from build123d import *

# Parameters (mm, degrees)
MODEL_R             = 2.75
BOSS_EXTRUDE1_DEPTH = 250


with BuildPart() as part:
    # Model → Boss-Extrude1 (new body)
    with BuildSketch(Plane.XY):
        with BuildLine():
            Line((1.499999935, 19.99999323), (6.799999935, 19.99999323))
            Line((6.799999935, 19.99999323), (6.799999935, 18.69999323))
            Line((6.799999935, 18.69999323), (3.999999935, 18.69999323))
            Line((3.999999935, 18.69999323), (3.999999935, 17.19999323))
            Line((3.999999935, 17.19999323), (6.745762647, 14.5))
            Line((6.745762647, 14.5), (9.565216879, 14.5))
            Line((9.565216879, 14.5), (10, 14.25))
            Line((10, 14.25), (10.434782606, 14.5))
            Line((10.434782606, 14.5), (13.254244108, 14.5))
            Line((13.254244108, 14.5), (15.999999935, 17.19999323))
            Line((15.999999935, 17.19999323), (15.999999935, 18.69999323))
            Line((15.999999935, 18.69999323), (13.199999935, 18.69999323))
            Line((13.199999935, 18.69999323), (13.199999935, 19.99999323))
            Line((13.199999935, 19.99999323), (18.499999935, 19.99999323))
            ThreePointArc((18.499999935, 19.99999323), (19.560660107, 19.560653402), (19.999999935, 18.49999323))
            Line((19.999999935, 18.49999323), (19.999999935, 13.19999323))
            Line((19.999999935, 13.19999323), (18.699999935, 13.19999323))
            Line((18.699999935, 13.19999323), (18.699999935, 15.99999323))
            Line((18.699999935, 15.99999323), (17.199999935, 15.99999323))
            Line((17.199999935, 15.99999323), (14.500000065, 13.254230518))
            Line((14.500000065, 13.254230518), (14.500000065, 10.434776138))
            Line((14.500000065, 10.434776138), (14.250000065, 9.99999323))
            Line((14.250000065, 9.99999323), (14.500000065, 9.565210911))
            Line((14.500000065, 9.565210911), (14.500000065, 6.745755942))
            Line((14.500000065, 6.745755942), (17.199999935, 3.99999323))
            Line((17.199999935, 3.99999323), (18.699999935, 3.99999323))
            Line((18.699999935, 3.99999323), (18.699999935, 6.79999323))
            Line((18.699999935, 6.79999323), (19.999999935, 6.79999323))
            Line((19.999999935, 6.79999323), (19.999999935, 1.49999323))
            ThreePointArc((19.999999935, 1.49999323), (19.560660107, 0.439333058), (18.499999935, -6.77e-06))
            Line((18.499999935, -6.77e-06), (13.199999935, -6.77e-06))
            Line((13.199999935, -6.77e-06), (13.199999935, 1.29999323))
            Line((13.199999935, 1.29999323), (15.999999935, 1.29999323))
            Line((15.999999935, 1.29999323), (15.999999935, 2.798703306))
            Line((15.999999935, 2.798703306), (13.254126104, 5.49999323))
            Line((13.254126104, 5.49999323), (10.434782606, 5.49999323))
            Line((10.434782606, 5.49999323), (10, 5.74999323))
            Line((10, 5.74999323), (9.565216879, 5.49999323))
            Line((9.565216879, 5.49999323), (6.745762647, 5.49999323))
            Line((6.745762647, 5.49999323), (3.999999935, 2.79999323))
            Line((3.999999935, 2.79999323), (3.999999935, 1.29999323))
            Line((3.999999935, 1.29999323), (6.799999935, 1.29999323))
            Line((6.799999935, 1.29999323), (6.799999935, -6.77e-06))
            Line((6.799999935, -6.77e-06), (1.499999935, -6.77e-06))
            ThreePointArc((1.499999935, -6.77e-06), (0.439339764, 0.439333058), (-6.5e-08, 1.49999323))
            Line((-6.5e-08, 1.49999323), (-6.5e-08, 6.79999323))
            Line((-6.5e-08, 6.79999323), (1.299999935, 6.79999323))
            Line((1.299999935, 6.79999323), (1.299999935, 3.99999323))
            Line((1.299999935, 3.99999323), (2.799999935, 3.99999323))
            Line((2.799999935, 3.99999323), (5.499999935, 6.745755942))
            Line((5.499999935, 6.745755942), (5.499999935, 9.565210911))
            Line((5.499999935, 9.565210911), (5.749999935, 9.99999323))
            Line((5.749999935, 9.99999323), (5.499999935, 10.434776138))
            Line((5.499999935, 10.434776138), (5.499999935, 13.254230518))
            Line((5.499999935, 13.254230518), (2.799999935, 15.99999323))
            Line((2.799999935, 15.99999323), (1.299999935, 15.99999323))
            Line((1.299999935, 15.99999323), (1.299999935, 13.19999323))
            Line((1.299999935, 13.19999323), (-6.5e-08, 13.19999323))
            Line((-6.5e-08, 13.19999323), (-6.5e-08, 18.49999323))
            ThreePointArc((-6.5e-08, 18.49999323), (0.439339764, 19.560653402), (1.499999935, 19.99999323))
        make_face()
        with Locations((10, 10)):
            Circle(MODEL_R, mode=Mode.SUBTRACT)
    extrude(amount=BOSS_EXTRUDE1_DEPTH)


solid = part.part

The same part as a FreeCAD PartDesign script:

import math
import FreeCAD as App
import Part
import Sketcher
from FreeCAD import Vector
Q = App.Units.Quantity

doc = App.newDocument("Part")
body = doc.addObject("PartDesign::Body", "Body")

sketch1 = doc.addObject("Sketcher::SketchObject", "Sketch")
body.addObject(sketch1)
sketch1.AttachmentSupport = (doc.XY_Plane, [""])
sketch1.MapMode = "FlatFace"
sketch1.addGeometry([
    Part.LineSegment(Vector(6.8, 20, 0), Vector(1.5, 20, 0)),
    Part.ArcOfCircle(Part.Circle(Vector(1.5, 18.5, 0), Vector(0, 0, 1), 1.5), math.radians(90), math.radians(180)),
    Part.LineSegment(Vector(0, 18.5, 0), Vector(0, 13.2, 0)),
    Part.LineSegment(Vector(0, 13.2, 0), Vector(1.3, 13.2, 0)),
    Part.LineSegment(Vector(1.3, 13.2, 0), Vector(1.3, 16, 0)),
    Part.LineSegment(Vector(1.3, 16, 0), Vector(2.8, 16, 0)),
    Part.LineSegment(Vector(2.8, 16, 0), Vector(5.5, 13.3, 0)),
    Part.LineSegment(Vector(5.5, 13.3, 0), Vector(5.5, 10.4, 0)),
    Part.LineSegment(Vector(5.5, 10.4, 0), Vector(5.7, 10, 0)),
    Part.LineSegment(Vector(5.7, 10, 0), Vector(5.5, 9.6, 0)),
    Part.LineSegment(Vector(5.5, 9.6, 0), Vector(5.5, 6.7, 0)),
    Part.LineSegment(Vector(5.5, 6.7, 0), Vector(2.8, 4, 0)),
    Part.LineSegment(Vector(2.8, 4, 0), Vector(1.3, 4, 0)),
    Part.LineSegment(Vector(1.3, 4, 0), Vector(1.3, 6.8, 0)),
    Part.LineSegment(Vector(1.3, 6.8, 0), Vector(0, 6.8, 0)),
    Part.LineSegment(Vector(0, 6.8, 0), Vector(0, 1.5, 0)),
    Part.ArcOfCircle(Part.Circle(Vector(1.5, 1.5, 0), Vector(0, 0, 1), 1.5), math.radians(-180), math.radians(-90)),
    Part.LineSegment(Vector(1.5, 0, 0), Vector(6.8, 0, 0)),
    Part.LineSegment(Vector(6.8, 0, 0), Vector(6.8, 1.3, 0)),
    Part.LineSegment(Vector(6.8, 1.3, 0), Vector(4, 1.3, 0)),
    Part.LineSegment(Vector(4, 1.3, 0), Vector(4, 2.8, 0)),
    Part.LineSegment(Vector(4, 2.8, 0), Vector(6.7, 5.5, 0)),
    Part.LineSegment(Vector(6.7, 5.5, 0), Vector(9.6, 5.5, 0)),
    Part.LineSegment(Vector(9.6, 5.5, 0), Vector(10, 5.7, 0)),
    Part.LineSegment(Vector(10, 5.7, 0), Vector(10.4, 5.5, 0)),
    Part.LineSegment(Vector(10.4, 5.5, 0), Vector(13.3, 5.5, 0)),
    Part.LineSegment(Vector(13.3, 5.5, 0), Vector(16, 2.8, 0)),
    Part.LineSegment(Vector(16, 2.8, 0), Vector(16, 1.3, 0)),
    Part.LineSegment(Vector(16, 1.3, 0), Vector(13.2, 1.3, 0)),
    Part.LineSegment(Vector(13.2, 1.3, 0), Vector(13.2, 0, 0)),
    Part.LineSegment(Vector(13.2, 0, 0), Vector(18.5, 0, 0)),
    Part.ArcOfCircle(Part.Circle(Vector(18.5, 1.5, 0), Vector(0, 0, 1), 1.5), math.radians(-90), math.radians(0)),
    Part.LineSegment(Vector(20, 1.5, 0), Vector(20, 6.8, 0)),
    Part.LineSegment(Vector(20, 6.8, 0), Vector(18.7, 6.8, 0)),
    Part.LineSegment(Vector(18.7, 6.8, 0), Vector(18.7, 4, 0)),
    Part.LineSegment(Vector(18.7, 4, 0), Vector(17.2, 4, 0)),
    Part.LineSegment(Vector(17.2, 4, 0), Vector(14.5, 6.7, 0)),
    Part.LineSegment(Vector(14.5, 6.7, 0), Vector(14.5, 9.6, 0)),
    Part.LineSegment(Vector(14.5, 9.6, 0), Vector(14.3, 10, 0)),
    Part.LineSegment(Vector(14.3, 10, 0), Vector(14.5, 10.4, 0)),
    Part.LineSegment(Vector(14.5, 10.4, 0), Vector(14.5, 13.3, 0)),
    Part.LineSegment(Vector(14.5, 13.3, 0), Vector(17.2, 16, 0)),
    Part.LineSegment(Vector(17.2, 16, 0), Vector(18.7, 16, 0)),
    Part.LineSegment(Vector(18.7, 16, 0), Vector(18.7, 13.2, 0)),
    Part.LineSegment(Vector(18.7, 13.2, 0), Vector(20, 13.2, 0)),
    Part.LineSegment(Vector(20, 13.2, 0), Vector(20, 18.5, 0)),
    Part.ArcOfCircle(Part.Circle(Vector(18.5, 18.5, 0), Vector(0, 0, 1), 1.5), math.radians(0), math.radians(90)),
    Part.LineSegment(Vector(18.5, 20, 0), Vector(13.2, 20, 0)),
    Part.LineSegment(Vector(13.2, 20, 0), Vector(13.2, 18.7, 0)),
    Part.LineSegment(Vector(13.2, 18.7, 0), Vector(16, 18.7, 0)),
    Part.LineSegment(Vector(16, 18.7, 0), Vector(16, 17.2, 0)),
    Part.LineSegment(Vector(16, 17.2, 0), Vector(13.3, 14.5, 0)),
    Part.LineSegment(Vector(13.3, 14.5, 0), Vector(10.4, 14.5, 0)),
    Part.LineSegment(Vector(10.4, 14.5, 0), Vector(10, 14.2, 0)),
    Part.LineSegment(Vector(10, 14.2, 0), Vector(9.6, 14.5, 0)),
    Part.LineSegment(Vector(9.6, 14.5, 0), Vector(6.7, 14.5, 0)),
    Part.LineSegment(Vector(6.7, 14.5, 0), Vector(4, 17.2, 0)),
    Part.LineSegment(Vector(4, 17.2, 0), Vector(4, 18.7, 0)),
    Part.LineSegment(Vector(4, 18.7, 0), Vector(6.8, 18.7, 0)),
    Part.LineSegment(Vector(6.8, 18.7, 0), Vector(6.8, 20, 0)),
    Part.Circle(Vector(10, 10, 0), Vector(0, 0, 1), 2.8),
], False)
sketch1.addConstraint([
    Sketcher.Constraint("Tangent", 0, 2, 1, 1),
    Sketcher.Constraint("Tangent", 1, 2, 2, 1),
    Sketcher.Constraint("Coincident", 2, 2, 3, 1),
    Sketcher.Constraint("Coincident", 3, 2, 4, 1),
    Sketcher.Constraint("Coincident", 4, 2, 5, 1),
    Sketcher.Constraint("Coincident", 5, 2, 6, 1),
    Sketcher.Constraint("Coincident", 6, 2, 7, 1),
    Sketcher.Constraint("Coincident", 7, 2, 8, 1),
    Sketcher.Constraint("Coincident", 8, 2, 9, 1),
    Sketcher.Constraint("Coincident", 9, 2, 10, 1),
    Sketcher.Constraint("Coincident", 10, 2, 11, 1),
    Sketcher.Constraint("Coincident", 11, 2, 12, 1),
    Sketcher.Constraint("Coincident", 12, 2, 13, 1),
    Sketcher.Constraint("Coincident", 13, 2, 14, 1),
    Sketcher.Constraint("Coincident", 14, 2, 15, 1),
    Sketcher.Constraint("Tangent", 15, 2, 16, 1),
    Sketcher.Constraint("Tangent", 16, 2, 17, 1),
    Sketcher.Constraint("Coincident", 17, 2, 18, 1),
    Sketcher.Constraint("Coincident", 18, 2, 19, 1),
    Sketcher.Constraint("Coincident", 19, 2, 20, 1),
    Sketcher.Constraint("Coincident", 20, 2, 21, 1),
    Sketcher.Constraint("Coincident", 21, 2, 22, 1),
    Sketcher.Constraint("Coincident", 22, 2, 23, 1),
    Sketcher.Constraint("Coincident", 23, 2, 24, 1),
    Sketcher.Constraint("Coincident", 24, 2, 25, 1),
    Sketcher.Constraint("Coincident", 25, 2, 26, 1),
    Sketcher.Constraint("Coincident", 26, 2, 27, 1),
    Sketcher.Constraint("Coincident", 27, 2, 28, 1),
    Sketcher.Constraint("Coincident", 28, 2, 29, 1),
    Sketcher.Constraint("Coincident", 29, 2, 30, 1),
    Sketcher.Constraint("Tangent", 30, 2, 31, 1),
    Sketcher.Constraint("Tangent", 31, 2, 32, 1),
    Sketcher.Constraint("Coincident", 32, 2, 33, 1),
    Sketcher.Constraint("Coincident", 33, 2, 34, 1),
    Sketcher.Constraint("Coincident", 34, 2, 35, 1),
    Sketcher.Constraint("Coincident", 35, 2, 36, 1),
    Sketcher.Constraint("Coincident", 36, 2, 37, 1),
    Sketcher.Constraint("Coincident", 37, 2, 38, 1),
    Sketcher.Constraint("Coincident", 38, 2, 39, 1),
    Sketcher.Constraint("Coincident", 39, 2, 40, 1),
    Sketcher.Constraint("Coincident", 40, 2, 41, 1),
    Sketcher.Constraint("Coincident", 41, 2, 42, 1),
    Sketcher.Constraint("Coincident", 42, 2, 43, 1),
    Sketcher.Constraint("Coincident", 43, 2, 44, 1),
    Sketcher.Constraint("Coincident", 44, 2, 45, 1),
    Sketcher.Constraint("Tangent", 45, 2, 46, 1),
    Sketcher.Constraint("Tangent", 46, 2, 47, 1),
    Sketcher.Constraint("Coincident", 47, 2, 48, 1),
    Sketcher.Constraint("Coincident", 48, 2, 49, 1),
    Sketcher.Constraint("Coincident", 49, 2, 50, 1),
    Sketcher.Constraint("Coincident", 50, 2, 51, 1),
    Sketcher.Constraint("Coincident", 51, 2, 52, 1),
    Sketcher.Constraint("Coincident", 52, 2, 53, 1),
    Sketcher.Constraint("Coincident", 53, 2, 54, 1),
    Sketcher.Constraint("Coincident", 54, 2, 55, 1),
    Sketcher.Constraint("Coincident", 55, 2, 56, 1),
    Sketcher.Constraint("Coincident", 56, 2, 57, 1),
    Sketcher.Constraint("Coincident", 57, 2, 58, 1),
    Sketcher.Constraint("Coincident", 58, 2, 59, 1),
    Sketcher.Constraint("Coincident", 59, 2, 0, 1),
    Sketcher.Constraint("Horizontal", 0),
    Sketcher.Constraint("Vertical", 2),
    Sketcher.Constraint("Horizontal", 3),
    Sketcher.Constraint("Vertical", 4),
    Sketcher.Constraint("Horizontal", 5),
    Sketcher.Constraint("Vertical", 7),
    Sketcher.Constraint("Vertical", 10),
    Sketcher.Constraint("Horizontal", 12),
    Sketcher.Constraint("Vertical", 13),
    Sketcher.Constraint("Horizontal", 14),
    Sketcher.Constraint("Vertical", 15),
    Sketcher.Constraint("Horizontal", 17),
    Sketcher.Constraint("Vertical", 18),
    Sketcher.Constraint("Horizontal", 19),
    Sketcher.Constraint("Vertical", 20),
    Sketcher.Constraint("Horizontal", 22),
    Sketcher.Constraint("Horizontal", 25),
    Sketcher.Constraint("Vertical", 27),
    Sketcher.Constraint("Horizontal", 28),
    Sketcher.Constraint("Vertical", 29),
    Sketcher.Constraint("Horizontal", 30),
    Sketcher.Constraint("Vertical", 32),
    Sketcher.Constraint("Horizontal", 33),
    Sketcher.Constraint("Vertical", 34),
    Sketcher.Constraint("Horizontal", 35),
    Sketcher.Constraint("Vertical", 37),
    Sketcher.Constraint("Vertical", 40),
    Sketcher.Constraint("Horizontal", 42),
    Sketcher.Constraint("Vertical", 43),
    Sketcher.Constraint("Horizontal", 44),
    Sketcher.Constraint("Vertical", 45),
    Sketcher.Constraint("Horizontal", 47),
    Sketcher.Constraint("Vertical", 48),
    Sketcher.Constraint("Horizontal", 49),
    Sketcher.Constraint("Vertical", 50),
    Sketcher.Constraint("Horizontal", 52),
    Sketcher.Constraint("Horizontal", 55),
    Sketcher.Constraint("Vertical", 57),
    Sketcher.Constraint("Horizontal", 58),
    Sketcher.Constraint("Vertical", 59),
    Sketcher.Constraint("Equal", 1, 16),
    Sketcher.Constraint("Equal", 16, 31),
    Sketcher.Constraint("Equal", 31, 46),
    Sketcher.Constraint("PointOnObject", 1, 2, -2),
    Sketcher.Constraint("PointOnObject", 14, 2, -2),
    Sketcher.Constraint("Perpendicular", 6, 21),
    Sketcher.Constraint("Perpendicular", 8, 23),
    Sketcher.Constraint("Perpendicular", 9, 24),
    Sketcher.Constraint("Perpendicular", 21, 36),
    Sketcher.Constraint("Perpendicular", 23, 38),
    Sketcher.Constraint("Perpendicular", 24, 39),
    Sketcher.Constraint("Parallel", 11, 41),
    Sketcher.Constraint("Perpendicular", 36, 51),
    Sketcher.Constraint("Perpendicular", 38, 53),
    Sketcher.Constraint("Perpendicular", 39, 54),
    Sketcher.Constraint("Perpendicular", 41, 56),
    Sketcher.Constraint("Horizontal", 16, 3, 31, 3),
    Sketcher.Constraint("Horizontal", 1, 3, 46, 3),
    Sketcher.Constraint("Horizontal", 22, 2, 24, 2),
    Sketcher.Constraint("Horizontal", 19, 2, 27, 2),
    Sketcher.Constraint("Horizontal", 14, 2, 32, 2),
    Sketcher.Constraint("Horizontal", 12, 2, 34, 2),
    Sketcher.Constraint("Horizontal", 10, 2, 36, 2),
    Sketcher.Constraint("Horizontal", 9, 2, 37, 2),
    Sketcher.Constraint("Horizontal", 8, 2, 38, 2),
    Sketcher.Constraint("Horizontal", 7, 2, 39, 2),
    Sketcher.Constraint("Horizontal", 6, 2, 40, 2),
    Sketcher.Constraint("Horizontal", 5, 2, 41, 2),
    Sketcher.Constraint("Horizontal", 3, 2, 43, 2),
    Sketcher.Constraint("Horizontal", 52, 2, 54, 2),
    Sketcher.Constraint("Horizontal", 50, 2, 56, 2),
    Sketcher.Constraint("Horizontal", 49, 2, 57, 2),
    Sketcher.Constraint("Vertical", 31, 3, 46, 3),
    Sketcher.Constraint("Vertical", 7, 2, 9, 2),
    Sketcher.Constraint("Vertical", 5, 2, 11, 2),
    Sketcher.Constraint("Vertical", 4, 2, 12, 2),
    Sketcher.Constraint("Vertical", 60, 3, 23, 2),
    Sketcher.Constraint("Vertical", 37, 2, 39, 2),
    Sketcher.Constraint("Vertical", 35, 2, 41, 2),
    Sketcher.Constraint("Vertical", 34, 2, 42, 2),
    Sketcher.Constraint("Vertical", 29, 2, 47, 2),
    Sketcher.Constraint("Vertical", 27, 2, 49, 2),
    Sketcher.Constraint("Vertical", 24, 2, 52, 2),
    Sketcher.Constraint("Vertical", 23, 2, 53, 2),
    Sketcher.Constraint("Vertical", 21, 2, 55, 2),
    Sketcher.Constraint("Vertical", 20, 2, 56, 2),
    Sketcher.Constraint("Vertical", 18, 2, 58, 2),
    Sketcher.Constraint("Equal", 19, 28),
    Sketcher.Constraint("Equal", 17, 30),
    Sketcher.Constraint("Equal", 14, 33),
    Sketcher.Constraint("Equal", 12, 35),
    Sketcher.Constraint("Equal", 47, 2),
    Sketcher.Constraint("Equal", 58, 4),
    Sketcher.Constraint("Equal", 55, 7),
    Sketcher.Constraint("Equal", 7, 10),
    Sketcher.Constraint("Equal", 4, 13),
    Sketcher.Constraint("Equal", 2, 15),
    Sketcher.Constraint("Equal", 44, 18),
    Sketcher.Constraint("Equal", 42, 20),
    Sketcher.Constraint("Equal", 29, 48),
    Sketcher.Constraint("Equal", 20, 50),
    Sketcher.Constraint("Equal", 11, 21),
    Sketcher.Constraint("Equal", 9, 23),
    Sketcher.Constraint("Diameter", 60, Q("5.5 mm")),
    Sketcher.Constraint("Radius", 1, Q("1.5 mm")),
    Sketcher.Constraint("DistanceX", 0, 2, 0, 1, Q("5.3 mm")),
    Sketcher.Constraint("DistanceX", 3, 1, 3, 2, Q("1.3 mm")),
    Sketcher.Constraint("DistanceX", 5, 1, 5, 2, Q("1.5 mm")),
    Sketcher.Constraint("DistanceX", 19, 2, 19, 1, Q("2.8 mm")),
    Sketcher.Constraint("DistanceX", -1, 1, 60, 3, Q("10 mm")),
    Sketcher.Constraint("DistanceY", -1, 1, 60, 3, Q("10 mm")),
    Sketcher.Constraint("DistanceX", -1, 1, 26, 2, Q("16 mm")),
    Sketcher.Constraint("DistanceX", -1, 1, 6, 2, Q("5.5 mm")),
    Sketcher.Constraint("DistanceY", -1, 1, 51, 2, Q("14.5 mm")),
    Sketcher.Constraint("DistanceX", -1, 1, 8, 2, Q("5.75 mm")),
    Sketcher.Constraint("DistanceX", 52, 2, 52, 1, Q("2.819462 mm")),
    Sketcher.Constraint("DistanceY", 27, 2, 27, 1, Q("1.49871 mm")),
    Sketcher.Constraint("Distance", 6, Q("3.850872 mm")),
    Sketcher.Constraint("DistanceX", 25, 1, 25, 2, Q("2.819343 mm")),
])
pad1 = doc.addObject("PartDesign::Pad", "Pad")
body.addObject(pad1)
pad1.Profile = sketch1
pad1.Length = 250

doc.recompute()
